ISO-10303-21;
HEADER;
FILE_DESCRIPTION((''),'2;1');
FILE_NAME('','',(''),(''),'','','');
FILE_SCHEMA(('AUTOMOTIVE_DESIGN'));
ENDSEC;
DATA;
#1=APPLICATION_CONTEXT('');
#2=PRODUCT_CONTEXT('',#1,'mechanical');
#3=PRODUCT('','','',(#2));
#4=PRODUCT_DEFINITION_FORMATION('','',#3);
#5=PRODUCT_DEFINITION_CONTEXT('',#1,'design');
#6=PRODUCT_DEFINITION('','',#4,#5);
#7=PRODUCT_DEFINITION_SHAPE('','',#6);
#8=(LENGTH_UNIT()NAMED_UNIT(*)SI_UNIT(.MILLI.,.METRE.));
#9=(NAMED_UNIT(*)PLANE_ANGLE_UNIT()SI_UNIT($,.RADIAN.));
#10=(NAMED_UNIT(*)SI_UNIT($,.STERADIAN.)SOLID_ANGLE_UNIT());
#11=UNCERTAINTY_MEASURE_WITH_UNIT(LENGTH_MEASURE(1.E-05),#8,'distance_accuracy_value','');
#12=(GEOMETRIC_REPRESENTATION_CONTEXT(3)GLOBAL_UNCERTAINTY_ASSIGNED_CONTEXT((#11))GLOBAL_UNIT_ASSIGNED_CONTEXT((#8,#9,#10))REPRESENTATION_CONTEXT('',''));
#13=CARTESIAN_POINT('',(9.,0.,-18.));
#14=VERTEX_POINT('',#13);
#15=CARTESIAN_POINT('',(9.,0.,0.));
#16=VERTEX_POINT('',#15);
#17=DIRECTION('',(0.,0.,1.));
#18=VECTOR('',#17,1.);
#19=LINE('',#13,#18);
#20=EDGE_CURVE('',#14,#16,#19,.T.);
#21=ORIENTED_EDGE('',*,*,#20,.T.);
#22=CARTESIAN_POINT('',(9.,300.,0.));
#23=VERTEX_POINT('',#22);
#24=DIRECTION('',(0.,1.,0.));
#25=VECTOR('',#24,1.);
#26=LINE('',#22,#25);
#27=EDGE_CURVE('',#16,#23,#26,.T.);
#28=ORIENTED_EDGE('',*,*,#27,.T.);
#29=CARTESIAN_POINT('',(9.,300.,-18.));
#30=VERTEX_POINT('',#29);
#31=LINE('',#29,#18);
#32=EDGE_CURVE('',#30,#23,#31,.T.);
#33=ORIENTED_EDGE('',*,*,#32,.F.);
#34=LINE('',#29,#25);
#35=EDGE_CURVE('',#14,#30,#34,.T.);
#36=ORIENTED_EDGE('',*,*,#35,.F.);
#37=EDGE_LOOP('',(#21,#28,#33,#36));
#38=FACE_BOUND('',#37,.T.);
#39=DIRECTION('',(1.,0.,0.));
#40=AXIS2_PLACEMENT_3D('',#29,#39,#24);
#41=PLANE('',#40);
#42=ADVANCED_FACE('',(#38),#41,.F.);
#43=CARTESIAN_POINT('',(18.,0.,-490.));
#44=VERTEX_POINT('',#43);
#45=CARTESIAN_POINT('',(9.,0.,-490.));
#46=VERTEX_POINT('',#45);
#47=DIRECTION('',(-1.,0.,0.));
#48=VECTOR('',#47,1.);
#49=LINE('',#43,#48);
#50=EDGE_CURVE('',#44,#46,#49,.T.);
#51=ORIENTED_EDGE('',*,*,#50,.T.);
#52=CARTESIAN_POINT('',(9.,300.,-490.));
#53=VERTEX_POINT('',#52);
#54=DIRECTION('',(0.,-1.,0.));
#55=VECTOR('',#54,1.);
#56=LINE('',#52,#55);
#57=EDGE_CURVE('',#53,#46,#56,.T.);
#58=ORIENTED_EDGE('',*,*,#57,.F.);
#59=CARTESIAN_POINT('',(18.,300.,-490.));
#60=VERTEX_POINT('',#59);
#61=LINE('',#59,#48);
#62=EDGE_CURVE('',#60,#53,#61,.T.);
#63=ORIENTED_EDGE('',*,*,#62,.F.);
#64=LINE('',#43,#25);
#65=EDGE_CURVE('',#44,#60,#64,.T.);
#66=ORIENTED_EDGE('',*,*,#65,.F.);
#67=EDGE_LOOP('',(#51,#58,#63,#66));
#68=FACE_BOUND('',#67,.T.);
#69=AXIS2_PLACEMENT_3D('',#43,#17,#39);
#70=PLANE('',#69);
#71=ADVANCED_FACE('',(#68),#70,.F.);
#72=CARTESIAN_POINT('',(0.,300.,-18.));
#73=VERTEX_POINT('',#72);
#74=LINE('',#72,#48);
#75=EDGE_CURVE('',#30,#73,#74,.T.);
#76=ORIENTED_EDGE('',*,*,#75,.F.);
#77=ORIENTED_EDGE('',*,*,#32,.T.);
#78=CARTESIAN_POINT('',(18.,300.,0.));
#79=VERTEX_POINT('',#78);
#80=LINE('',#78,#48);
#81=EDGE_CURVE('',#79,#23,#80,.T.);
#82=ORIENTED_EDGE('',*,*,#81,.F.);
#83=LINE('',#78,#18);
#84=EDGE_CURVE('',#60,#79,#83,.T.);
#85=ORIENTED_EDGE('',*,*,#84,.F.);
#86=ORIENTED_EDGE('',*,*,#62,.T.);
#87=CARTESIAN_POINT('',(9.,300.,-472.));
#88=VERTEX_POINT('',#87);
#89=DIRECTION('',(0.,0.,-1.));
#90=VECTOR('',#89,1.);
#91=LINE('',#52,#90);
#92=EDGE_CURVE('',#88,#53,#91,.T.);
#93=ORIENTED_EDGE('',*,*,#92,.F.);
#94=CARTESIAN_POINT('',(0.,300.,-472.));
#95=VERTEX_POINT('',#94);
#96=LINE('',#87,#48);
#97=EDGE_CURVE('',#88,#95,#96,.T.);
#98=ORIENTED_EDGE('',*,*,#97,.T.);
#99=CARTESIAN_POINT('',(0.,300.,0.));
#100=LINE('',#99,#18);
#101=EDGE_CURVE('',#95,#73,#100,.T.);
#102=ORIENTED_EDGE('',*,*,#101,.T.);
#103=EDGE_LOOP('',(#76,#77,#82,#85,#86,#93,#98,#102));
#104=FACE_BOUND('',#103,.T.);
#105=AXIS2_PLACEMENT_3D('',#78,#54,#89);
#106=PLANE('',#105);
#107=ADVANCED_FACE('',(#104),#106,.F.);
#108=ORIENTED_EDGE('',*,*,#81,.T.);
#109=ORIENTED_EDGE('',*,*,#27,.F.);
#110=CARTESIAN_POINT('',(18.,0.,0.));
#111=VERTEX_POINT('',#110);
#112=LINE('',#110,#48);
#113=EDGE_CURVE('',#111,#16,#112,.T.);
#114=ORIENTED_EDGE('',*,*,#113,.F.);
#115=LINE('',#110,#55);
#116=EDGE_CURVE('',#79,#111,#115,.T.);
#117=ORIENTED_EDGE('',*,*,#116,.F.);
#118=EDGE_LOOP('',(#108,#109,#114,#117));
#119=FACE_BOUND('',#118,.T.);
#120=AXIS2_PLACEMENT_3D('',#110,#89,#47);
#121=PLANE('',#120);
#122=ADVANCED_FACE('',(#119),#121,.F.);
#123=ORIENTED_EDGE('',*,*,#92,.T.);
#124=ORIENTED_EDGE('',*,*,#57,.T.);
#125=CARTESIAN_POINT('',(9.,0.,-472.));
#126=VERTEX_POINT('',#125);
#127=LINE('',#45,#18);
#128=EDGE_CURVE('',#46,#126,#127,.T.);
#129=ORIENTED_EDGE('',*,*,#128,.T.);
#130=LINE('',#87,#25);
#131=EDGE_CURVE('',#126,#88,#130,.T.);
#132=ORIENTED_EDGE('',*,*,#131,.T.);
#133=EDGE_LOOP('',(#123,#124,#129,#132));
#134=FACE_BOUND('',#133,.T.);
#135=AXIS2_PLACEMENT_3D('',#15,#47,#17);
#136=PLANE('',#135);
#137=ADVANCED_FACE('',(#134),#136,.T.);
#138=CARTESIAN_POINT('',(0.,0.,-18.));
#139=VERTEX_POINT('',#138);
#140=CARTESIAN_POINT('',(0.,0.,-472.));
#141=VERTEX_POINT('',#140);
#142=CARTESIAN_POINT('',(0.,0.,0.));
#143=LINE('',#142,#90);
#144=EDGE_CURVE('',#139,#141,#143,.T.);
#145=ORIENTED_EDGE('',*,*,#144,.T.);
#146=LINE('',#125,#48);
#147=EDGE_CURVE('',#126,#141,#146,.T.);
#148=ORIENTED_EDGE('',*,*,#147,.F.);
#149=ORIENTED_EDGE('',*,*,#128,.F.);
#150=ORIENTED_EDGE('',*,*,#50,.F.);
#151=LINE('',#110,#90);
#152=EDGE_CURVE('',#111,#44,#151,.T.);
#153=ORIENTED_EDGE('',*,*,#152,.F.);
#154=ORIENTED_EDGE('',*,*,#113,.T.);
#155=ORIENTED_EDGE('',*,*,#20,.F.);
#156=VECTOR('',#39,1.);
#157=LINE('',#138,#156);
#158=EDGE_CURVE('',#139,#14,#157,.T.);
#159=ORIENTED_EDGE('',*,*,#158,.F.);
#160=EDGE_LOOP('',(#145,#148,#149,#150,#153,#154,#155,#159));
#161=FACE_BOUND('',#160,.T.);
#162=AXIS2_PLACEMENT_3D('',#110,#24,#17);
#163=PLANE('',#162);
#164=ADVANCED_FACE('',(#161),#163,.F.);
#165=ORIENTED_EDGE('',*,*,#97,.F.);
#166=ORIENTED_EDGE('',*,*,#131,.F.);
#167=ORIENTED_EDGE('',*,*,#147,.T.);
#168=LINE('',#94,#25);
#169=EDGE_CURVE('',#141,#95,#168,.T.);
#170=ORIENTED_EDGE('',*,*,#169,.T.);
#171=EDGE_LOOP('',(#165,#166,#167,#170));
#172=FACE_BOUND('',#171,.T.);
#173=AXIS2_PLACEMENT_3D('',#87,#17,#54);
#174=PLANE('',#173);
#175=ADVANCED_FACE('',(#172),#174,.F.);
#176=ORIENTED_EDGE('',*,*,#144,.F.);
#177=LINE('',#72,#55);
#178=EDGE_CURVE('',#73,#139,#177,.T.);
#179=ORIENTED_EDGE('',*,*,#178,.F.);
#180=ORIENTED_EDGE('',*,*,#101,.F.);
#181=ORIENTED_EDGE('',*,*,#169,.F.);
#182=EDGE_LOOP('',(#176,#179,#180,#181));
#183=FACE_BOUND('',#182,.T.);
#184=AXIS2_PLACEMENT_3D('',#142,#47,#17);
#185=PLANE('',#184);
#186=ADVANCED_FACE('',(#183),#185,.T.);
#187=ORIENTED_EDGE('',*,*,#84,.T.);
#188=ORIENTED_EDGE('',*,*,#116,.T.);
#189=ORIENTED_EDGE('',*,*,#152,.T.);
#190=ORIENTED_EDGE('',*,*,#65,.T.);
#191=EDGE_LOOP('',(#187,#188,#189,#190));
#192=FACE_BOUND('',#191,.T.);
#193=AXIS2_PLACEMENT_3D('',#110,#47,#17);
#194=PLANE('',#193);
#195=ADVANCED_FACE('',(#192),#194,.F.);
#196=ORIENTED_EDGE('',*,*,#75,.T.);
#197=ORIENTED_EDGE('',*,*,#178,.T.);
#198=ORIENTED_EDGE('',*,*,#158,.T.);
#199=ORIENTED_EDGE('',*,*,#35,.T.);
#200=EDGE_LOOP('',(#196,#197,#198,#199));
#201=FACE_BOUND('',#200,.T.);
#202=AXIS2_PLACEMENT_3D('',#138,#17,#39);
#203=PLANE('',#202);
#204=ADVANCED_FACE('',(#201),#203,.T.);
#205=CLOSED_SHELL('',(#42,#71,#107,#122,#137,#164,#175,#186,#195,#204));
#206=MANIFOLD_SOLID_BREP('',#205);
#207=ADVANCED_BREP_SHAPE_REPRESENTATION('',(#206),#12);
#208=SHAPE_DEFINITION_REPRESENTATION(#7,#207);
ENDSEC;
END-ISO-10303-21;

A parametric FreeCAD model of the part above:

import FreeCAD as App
import Part
import Sketcher

V = App.Vector

doc = App.newDocument("Part")
params = doc.addObject("Spreadsheet::Sheet", "Params")
for row, (alias, value) in enumerate([
    ("sketch1_width", "300 mm"),
    ("sketch1_height", "490 mm"),
    ("pad1_length", "18 mm"),
    ("sketch2_width", "9 mm"),
    ("sketch2_height", "300 mm"),
    ("pocket1_length", "18 mm"),
    ("sketch3_width", "300 mm"),
    ("sketch3_height", "18 mm"),
    ("pocket2_length", "9 mm"),
], start=1):
    params.set(f"A{row}", alias)
    params.set(f"B{row}", "=" + value)
    params.setAlias(f"B{row}", alias)

body = doc.addObject("PartDesign::Body", "Body")

# Sketch on YZ plane
sketch1 = body.newObject("Sketcher::SketchObject", "Sketch")
sketch1.AttachmentSupport = (doc.getObject("YZ_Plane"), [""])
sketch1.MapMode = "FlatFace"
sketch1.addGeometry(Part.LineSegment(V(300, 0, 0), V(0, 0, 0)), False)
sketch1.addGeometry(Part.LineSegment(V(0, 0, 0), V(0, -490, 0)), False)
sketch1.addGeometry(Part.LineSegment(V(0, -490, 0), V(300, -490, 0)), False)
sketch1.addGeometry(Part.LineSegment(V(300, -490, 0), V(300, 0, 0)), False)
sketch1.addConstraint(Sketcher.Constraint("Coincident", 0, 2, 1, 1))
sketch1.addConstraint(Sketcher.Constraint("Coincident", 1, 2, 2, 1))
sketch1.addConstraint(Sketcher.Constraint("Coincident", 2, 2, 3, 1))
sketch1.addConstraint(Sketcher.Constraint("Coincident", 3, 2, 0, 1))
sketch1.addConstraint(Sketcher.Constraint("Horizontal", 0))
sketch1.addConstraint(Sketcher.Constraint("Vertical", 1))
sketch1.addConstraint(Sketcher.Constraint("Horizontal", 2))
sketch1.addConstraint(Sketcher.Constraint("Vertical", 3))
sketch1.addConstraint(Sketcher.Constraint("Coincident", 0, 2, -1, 1))
sketch1.addConstraint(Sketcher.Constraint("DistanceX", 0, 2, 0, 1, 300.0))
sketch1.addConstraint(Sketcher.Constraint("DistanceY", 1, 2, 1, 1, 490.0))
sketch1.setExpression("Constraints[9]", "Params.sketch1_width")
sketch1.setExpression("Constraints[10]", "Params.sketch1_height")
pad1 = body.newObject("PartDesign::Pad", "Pad")
pad1.Profile = sketch1
pad1.setExpression("Length", "Params.pad1_length")

# Sketch on XY plane
sketch2 = body.newObject("Sketcher::SketchObject", "Sketch001")
sketch2.AttachmentSupport = (doc.getObject("XY_Plane"), [""])
sketch2.MapMode = "FlatFace"
sketch2.addGeometry(Part.LineSegment(V(0, 300, 0), V(0, 0, 0)), False)
sketch2.addGeometry(Part.LineSegment(V(0, 0, 0), V(9, 0, 0)), False)
sketch2.addGeometry(Part.LineSegment(V(9, 0, 0), V(9, 300, 0)), False)
sketch2.addGeometry(Part.LineSegment(V(9, 300, 0), V(0, 300, 0)), False)
sketch2.addConstraint(Sketcher.Constraint("Coincident", 0, 2, 1, 1))
sketch2.addConstraint(Sketcher.Constraint("Coincident", 1, 2, 2, 1))
sketch2.addConstraint(Sketcher.Constraint("Coincident", 2, 2, 3, 1))
sketch2.addConstraint(Sketcher.Constraint("Coincident", 3, 2, 0, 1))
sketch2.addConstraint(Sketcher.Constraint("Vertical", 0))
sketch2.addConstraint(Sketcher.Constraint("Horizontal", 1))
sketch2.addConstraint(Sketcher.Constraint("Vertical", 2))
sketch2.addConstraint(Sketcher.Constraint("Horizontal", 3))
sketch2.addConstraint(Sketcher.Constraint("Coincident", 0, 2, -1, 1))
sketch2.addConstraint(Sketcher.Constraint("DistanceX", 1, 1, 1, 2, 9.0))
sketch2.addConstraint(Sketcher.Constraint("DistanceY", 0, 2, 0, 1, 300.0))
sketch2.setExpression("Constraints[9]", "Params.sketch2_width")
sketch2.setExpression("Constraints[10]", "Params.sketch2_height")
pocket1 = body.newObject("PartDesign::Pocket", "Pocket")
pocket1.Profile = sketch2
pocket1.setExpression("Length", "Params.pocket1_length")

# Sketch on YZ plane
sketch3 = body.newObject("Sketcher::SketchObject", "Sketch002")
sketch3.AttachmentSupport = (doc.getObject("YZ_Plane"), [""])
sketch3.MapMode = "FlatFace"
sketch3.addGeometry(Part.LineSegment(V(300, -490, 0), V(0, -490, 0)), False)
sketch3.addGeometry(Part.LineSegment(V(0, -490, 0), V(0, -472, 0)), False)
sketch3.addGeometry(Part.LineSegment(V(0, -472, 0), V(300, -472, 0)), False)
sketch3.addGeometry(Part.LineSegment(V(300, -472, 0), V(300, -490, 0)), False)
sketch3.addConstraint(Sketcher.Constraint("Coincident", 0, 2, 1, 1))
sketch3.addConstraint(Sketcher.Constraint("Coincident", 1, 2, 2, 1))
sketch3.addConstraint(Sketcher.Constraint("Coincident", 2, 2, 3, 1))
sketch3.addConstraint(Sketcher.Constraint("Coincident", 3, 2, 0, 1))
sketch3.addConstraint(Sketcher.Constraint("Horizontal", 0))
sketch3.addConstraint(Sketcher.Constraint("Vertical", 1))
sketch3.addConstraint(Sketcher.Constraint("Horizontal", 2))
sketch3.addConstraint(Sketcher.Constraint("Vertical", 3))
sketch3.addConstraint(Sketcher.Constraint("PointOnObject", 0, 2, -2))
sketch3.addConstraint(Sketcher.Constraint("DistanceX", 0, 2, 0, 1, 300.0))
sketch3.addConstraint(Sketcher.Constraint("DistanceY", 1, 1, 1, 2, 18.0))
sketch3.addConstraint(Sketcher.Constraint("DistanceY", 0, 2, -1, 1, 490.0))
sketch3.setExpression("Constraints[9]", "Params.sketch3_width")
sketch3.setExpression("Constraints[10]", "Params.sketch3_height")
pocket2 = body.newObject("PartDesign::Pocket", "Pocket001")
pocket2.Profile = sketch3
pocket2.setExpression("Length", "Params.pocket2_length")
pocket2.Reversed = True

doc.recompute()
